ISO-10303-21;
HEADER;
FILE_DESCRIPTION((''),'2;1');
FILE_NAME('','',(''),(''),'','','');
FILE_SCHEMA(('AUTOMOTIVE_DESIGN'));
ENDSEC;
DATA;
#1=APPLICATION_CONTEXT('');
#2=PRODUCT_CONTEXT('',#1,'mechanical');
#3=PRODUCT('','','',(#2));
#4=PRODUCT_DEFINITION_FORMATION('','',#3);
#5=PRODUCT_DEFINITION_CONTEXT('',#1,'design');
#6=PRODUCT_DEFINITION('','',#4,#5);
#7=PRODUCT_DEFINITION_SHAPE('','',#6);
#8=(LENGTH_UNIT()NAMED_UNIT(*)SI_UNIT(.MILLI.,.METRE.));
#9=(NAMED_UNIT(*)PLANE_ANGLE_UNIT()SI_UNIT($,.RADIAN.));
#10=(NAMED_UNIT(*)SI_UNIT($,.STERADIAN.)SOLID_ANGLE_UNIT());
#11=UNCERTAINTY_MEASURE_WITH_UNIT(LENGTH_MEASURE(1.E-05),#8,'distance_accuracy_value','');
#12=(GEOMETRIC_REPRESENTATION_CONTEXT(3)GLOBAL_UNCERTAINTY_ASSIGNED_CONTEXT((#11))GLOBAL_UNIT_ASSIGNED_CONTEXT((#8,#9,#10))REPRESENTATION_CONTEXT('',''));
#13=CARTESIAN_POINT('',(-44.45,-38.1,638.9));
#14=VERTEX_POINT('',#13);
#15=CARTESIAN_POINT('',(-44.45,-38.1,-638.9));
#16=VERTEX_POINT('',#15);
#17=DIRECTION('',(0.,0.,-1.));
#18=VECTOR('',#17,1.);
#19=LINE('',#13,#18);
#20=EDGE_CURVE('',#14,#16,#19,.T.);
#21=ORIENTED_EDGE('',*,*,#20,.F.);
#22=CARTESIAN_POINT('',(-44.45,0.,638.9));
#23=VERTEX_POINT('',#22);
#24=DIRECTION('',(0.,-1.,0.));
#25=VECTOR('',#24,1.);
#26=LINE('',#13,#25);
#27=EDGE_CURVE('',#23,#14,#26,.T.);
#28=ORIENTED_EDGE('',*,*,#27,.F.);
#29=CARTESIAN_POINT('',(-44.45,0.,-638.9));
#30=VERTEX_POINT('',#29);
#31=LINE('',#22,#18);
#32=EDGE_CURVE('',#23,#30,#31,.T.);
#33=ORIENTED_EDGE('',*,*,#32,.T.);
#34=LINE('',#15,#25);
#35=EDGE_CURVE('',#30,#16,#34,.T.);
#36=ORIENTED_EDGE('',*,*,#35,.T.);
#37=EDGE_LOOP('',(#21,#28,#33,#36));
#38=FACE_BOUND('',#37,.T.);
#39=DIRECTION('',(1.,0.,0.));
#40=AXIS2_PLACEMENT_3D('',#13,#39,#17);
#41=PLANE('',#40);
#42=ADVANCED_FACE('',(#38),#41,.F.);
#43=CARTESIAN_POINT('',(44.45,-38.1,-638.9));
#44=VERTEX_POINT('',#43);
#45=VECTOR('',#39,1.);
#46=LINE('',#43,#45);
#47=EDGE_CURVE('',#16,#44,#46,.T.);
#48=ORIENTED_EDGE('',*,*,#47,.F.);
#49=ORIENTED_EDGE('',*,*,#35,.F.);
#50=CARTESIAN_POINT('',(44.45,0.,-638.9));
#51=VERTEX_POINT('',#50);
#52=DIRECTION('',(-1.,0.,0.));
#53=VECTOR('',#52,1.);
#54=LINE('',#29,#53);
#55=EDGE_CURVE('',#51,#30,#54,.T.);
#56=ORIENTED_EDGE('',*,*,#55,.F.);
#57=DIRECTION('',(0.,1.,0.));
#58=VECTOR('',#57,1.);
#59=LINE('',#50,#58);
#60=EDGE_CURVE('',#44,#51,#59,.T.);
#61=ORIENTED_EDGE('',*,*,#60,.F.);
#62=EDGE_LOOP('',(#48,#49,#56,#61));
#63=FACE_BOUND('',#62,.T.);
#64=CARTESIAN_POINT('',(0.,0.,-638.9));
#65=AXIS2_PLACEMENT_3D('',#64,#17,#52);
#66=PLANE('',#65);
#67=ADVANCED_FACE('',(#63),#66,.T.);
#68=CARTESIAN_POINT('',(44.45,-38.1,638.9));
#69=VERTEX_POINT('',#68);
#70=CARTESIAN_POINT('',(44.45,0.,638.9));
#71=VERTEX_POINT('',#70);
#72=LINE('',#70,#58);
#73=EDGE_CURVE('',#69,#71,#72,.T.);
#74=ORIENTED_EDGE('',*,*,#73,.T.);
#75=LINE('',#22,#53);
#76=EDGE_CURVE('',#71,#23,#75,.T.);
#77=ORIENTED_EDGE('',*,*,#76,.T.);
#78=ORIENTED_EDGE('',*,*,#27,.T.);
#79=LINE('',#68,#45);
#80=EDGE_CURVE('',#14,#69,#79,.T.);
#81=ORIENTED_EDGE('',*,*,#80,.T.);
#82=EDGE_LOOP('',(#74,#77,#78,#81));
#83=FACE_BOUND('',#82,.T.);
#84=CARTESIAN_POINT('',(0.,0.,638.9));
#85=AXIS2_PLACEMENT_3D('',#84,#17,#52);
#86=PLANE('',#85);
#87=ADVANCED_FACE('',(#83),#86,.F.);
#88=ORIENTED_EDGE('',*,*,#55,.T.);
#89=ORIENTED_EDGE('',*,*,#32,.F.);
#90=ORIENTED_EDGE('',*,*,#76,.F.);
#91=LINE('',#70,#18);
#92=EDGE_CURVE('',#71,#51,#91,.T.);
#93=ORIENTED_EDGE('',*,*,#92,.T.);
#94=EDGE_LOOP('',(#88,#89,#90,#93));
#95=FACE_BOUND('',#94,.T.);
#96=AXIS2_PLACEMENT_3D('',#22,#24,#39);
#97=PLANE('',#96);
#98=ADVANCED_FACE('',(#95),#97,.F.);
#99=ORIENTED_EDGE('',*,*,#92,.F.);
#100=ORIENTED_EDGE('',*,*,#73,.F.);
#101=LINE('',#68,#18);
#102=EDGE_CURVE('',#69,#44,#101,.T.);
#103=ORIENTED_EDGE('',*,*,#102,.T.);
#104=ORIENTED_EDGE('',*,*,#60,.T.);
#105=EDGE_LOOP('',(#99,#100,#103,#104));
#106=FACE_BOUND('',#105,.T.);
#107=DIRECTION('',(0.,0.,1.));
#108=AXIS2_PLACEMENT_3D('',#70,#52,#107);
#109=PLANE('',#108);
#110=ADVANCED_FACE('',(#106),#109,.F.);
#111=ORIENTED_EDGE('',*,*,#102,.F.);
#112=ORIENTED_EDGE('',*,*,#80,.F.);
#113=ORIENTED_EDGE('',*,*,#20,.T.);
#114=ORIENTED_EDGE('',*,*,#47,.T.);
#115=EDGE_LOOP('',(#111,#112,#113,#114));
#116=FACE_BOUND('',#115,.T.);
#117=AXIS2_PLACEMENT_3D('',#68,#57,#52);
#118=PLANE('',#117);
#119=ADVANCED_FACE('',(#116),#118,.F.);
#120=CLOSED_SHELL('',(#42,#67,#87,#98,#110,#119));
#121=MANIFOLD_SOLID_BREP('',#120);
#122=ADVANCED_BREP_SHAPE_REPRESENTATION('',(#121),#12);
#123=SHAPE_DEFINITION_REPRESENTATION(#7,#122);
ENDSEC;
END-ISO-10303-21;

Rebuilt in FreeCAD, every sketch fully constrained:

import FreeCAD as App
import Part
import Sketcher

V = App.Vector
Q = App.Units.Quantity

doc = App.newDocument("Part")
params = doc.addObject("Spreadsheet::Sheet", "Params")
for row, (alias, value) in enumerate([
    ("sketch1_width", "3.5 in"),
    ("sketch1_height", "1.5 in"),
    ("pad1_length", "1277.8 mm"),
], start=1):
    params.set(f"A{row}", alias)
    params.set(f"B{row}", "=" + value)
    params.setAlias(f"B{row}", alias)

body = doc.addObject("PartDesign::Body", "Body")

# Sketch on XY plane
sketch1 = doc.addObject("Sketcher::SketchObject", "Sketch")
body.addObject(sketch1)
sketch1.AttachmentSupport = (doc.XY_Plane, [""])
sketch1.MapMode = "FlatFace"
sketch1.addGeometry(Part.LineSegment(V(-44, 0, 0), V(-44, -38, 0)), False)
sketch1.addGeometry(Part.LineSegment(V(-44, -38, 0), V(44, -38, 0)), False)
sketch1.addGeometry(Part.LineSegment(V(44, -38, 0), V(44, 0, 0)), False)
sketch1.addGeometry(Part.LineSegment(V(44, 0, 0), V(-44, 0, 0)), False)
sketch1.addConstraint(Sketcher.Constraint("Coincident", 0, 2, 1, 1))
sketch1.addConstraint(Sketcher.Constraint("Coincident", 1, 2, 2, 1))
sketch1.addConstraint(Sketcher.Constraint("Coincident", 2, 2, 3, 1))
sketch1.addConstraint(Sketcher.Constraint("Coincident", 3, 2, 0, 1))
sketch1.addConstraint(Sketcher.Constraint("Vertical", 0))
sketch1.addConstraint(Sketcher.Constraint("Horizontal", 1))
sketch1.addConstraint(Sketcher.Constraint("Vertical", 2))
sketch1.addConstraint(Sketcher.Constraint("Horizontal", 3))
sketch1.addConstraint(Sketcher.Constraint("Symmetric", 2, 2, 3, 2, -1, 1))
sketch1.addConstraint(Sketcher.Constraint("DistanceX", 1, 1, 1, 2, Q("3.5 in")))
sketch1.addConstraint(Sketcher.Constraint("DistanceY", 0, 2, 0, 1, Q("1.5 in")))
sketch1.setExpression("Constraints[9]", "Params.sketch1_width")
sketch1.setExpression("Constraints[10]", "Params.sketch1_height")
pad1 = doc.addObject("PartDesign::Pad", "Pad")
body.addObject(pad1)
pad1.Profile = sketch1
pad1.setExpression("Length", "Params.pad1_length")
pad1.Midplane = True

doc.recompute()
